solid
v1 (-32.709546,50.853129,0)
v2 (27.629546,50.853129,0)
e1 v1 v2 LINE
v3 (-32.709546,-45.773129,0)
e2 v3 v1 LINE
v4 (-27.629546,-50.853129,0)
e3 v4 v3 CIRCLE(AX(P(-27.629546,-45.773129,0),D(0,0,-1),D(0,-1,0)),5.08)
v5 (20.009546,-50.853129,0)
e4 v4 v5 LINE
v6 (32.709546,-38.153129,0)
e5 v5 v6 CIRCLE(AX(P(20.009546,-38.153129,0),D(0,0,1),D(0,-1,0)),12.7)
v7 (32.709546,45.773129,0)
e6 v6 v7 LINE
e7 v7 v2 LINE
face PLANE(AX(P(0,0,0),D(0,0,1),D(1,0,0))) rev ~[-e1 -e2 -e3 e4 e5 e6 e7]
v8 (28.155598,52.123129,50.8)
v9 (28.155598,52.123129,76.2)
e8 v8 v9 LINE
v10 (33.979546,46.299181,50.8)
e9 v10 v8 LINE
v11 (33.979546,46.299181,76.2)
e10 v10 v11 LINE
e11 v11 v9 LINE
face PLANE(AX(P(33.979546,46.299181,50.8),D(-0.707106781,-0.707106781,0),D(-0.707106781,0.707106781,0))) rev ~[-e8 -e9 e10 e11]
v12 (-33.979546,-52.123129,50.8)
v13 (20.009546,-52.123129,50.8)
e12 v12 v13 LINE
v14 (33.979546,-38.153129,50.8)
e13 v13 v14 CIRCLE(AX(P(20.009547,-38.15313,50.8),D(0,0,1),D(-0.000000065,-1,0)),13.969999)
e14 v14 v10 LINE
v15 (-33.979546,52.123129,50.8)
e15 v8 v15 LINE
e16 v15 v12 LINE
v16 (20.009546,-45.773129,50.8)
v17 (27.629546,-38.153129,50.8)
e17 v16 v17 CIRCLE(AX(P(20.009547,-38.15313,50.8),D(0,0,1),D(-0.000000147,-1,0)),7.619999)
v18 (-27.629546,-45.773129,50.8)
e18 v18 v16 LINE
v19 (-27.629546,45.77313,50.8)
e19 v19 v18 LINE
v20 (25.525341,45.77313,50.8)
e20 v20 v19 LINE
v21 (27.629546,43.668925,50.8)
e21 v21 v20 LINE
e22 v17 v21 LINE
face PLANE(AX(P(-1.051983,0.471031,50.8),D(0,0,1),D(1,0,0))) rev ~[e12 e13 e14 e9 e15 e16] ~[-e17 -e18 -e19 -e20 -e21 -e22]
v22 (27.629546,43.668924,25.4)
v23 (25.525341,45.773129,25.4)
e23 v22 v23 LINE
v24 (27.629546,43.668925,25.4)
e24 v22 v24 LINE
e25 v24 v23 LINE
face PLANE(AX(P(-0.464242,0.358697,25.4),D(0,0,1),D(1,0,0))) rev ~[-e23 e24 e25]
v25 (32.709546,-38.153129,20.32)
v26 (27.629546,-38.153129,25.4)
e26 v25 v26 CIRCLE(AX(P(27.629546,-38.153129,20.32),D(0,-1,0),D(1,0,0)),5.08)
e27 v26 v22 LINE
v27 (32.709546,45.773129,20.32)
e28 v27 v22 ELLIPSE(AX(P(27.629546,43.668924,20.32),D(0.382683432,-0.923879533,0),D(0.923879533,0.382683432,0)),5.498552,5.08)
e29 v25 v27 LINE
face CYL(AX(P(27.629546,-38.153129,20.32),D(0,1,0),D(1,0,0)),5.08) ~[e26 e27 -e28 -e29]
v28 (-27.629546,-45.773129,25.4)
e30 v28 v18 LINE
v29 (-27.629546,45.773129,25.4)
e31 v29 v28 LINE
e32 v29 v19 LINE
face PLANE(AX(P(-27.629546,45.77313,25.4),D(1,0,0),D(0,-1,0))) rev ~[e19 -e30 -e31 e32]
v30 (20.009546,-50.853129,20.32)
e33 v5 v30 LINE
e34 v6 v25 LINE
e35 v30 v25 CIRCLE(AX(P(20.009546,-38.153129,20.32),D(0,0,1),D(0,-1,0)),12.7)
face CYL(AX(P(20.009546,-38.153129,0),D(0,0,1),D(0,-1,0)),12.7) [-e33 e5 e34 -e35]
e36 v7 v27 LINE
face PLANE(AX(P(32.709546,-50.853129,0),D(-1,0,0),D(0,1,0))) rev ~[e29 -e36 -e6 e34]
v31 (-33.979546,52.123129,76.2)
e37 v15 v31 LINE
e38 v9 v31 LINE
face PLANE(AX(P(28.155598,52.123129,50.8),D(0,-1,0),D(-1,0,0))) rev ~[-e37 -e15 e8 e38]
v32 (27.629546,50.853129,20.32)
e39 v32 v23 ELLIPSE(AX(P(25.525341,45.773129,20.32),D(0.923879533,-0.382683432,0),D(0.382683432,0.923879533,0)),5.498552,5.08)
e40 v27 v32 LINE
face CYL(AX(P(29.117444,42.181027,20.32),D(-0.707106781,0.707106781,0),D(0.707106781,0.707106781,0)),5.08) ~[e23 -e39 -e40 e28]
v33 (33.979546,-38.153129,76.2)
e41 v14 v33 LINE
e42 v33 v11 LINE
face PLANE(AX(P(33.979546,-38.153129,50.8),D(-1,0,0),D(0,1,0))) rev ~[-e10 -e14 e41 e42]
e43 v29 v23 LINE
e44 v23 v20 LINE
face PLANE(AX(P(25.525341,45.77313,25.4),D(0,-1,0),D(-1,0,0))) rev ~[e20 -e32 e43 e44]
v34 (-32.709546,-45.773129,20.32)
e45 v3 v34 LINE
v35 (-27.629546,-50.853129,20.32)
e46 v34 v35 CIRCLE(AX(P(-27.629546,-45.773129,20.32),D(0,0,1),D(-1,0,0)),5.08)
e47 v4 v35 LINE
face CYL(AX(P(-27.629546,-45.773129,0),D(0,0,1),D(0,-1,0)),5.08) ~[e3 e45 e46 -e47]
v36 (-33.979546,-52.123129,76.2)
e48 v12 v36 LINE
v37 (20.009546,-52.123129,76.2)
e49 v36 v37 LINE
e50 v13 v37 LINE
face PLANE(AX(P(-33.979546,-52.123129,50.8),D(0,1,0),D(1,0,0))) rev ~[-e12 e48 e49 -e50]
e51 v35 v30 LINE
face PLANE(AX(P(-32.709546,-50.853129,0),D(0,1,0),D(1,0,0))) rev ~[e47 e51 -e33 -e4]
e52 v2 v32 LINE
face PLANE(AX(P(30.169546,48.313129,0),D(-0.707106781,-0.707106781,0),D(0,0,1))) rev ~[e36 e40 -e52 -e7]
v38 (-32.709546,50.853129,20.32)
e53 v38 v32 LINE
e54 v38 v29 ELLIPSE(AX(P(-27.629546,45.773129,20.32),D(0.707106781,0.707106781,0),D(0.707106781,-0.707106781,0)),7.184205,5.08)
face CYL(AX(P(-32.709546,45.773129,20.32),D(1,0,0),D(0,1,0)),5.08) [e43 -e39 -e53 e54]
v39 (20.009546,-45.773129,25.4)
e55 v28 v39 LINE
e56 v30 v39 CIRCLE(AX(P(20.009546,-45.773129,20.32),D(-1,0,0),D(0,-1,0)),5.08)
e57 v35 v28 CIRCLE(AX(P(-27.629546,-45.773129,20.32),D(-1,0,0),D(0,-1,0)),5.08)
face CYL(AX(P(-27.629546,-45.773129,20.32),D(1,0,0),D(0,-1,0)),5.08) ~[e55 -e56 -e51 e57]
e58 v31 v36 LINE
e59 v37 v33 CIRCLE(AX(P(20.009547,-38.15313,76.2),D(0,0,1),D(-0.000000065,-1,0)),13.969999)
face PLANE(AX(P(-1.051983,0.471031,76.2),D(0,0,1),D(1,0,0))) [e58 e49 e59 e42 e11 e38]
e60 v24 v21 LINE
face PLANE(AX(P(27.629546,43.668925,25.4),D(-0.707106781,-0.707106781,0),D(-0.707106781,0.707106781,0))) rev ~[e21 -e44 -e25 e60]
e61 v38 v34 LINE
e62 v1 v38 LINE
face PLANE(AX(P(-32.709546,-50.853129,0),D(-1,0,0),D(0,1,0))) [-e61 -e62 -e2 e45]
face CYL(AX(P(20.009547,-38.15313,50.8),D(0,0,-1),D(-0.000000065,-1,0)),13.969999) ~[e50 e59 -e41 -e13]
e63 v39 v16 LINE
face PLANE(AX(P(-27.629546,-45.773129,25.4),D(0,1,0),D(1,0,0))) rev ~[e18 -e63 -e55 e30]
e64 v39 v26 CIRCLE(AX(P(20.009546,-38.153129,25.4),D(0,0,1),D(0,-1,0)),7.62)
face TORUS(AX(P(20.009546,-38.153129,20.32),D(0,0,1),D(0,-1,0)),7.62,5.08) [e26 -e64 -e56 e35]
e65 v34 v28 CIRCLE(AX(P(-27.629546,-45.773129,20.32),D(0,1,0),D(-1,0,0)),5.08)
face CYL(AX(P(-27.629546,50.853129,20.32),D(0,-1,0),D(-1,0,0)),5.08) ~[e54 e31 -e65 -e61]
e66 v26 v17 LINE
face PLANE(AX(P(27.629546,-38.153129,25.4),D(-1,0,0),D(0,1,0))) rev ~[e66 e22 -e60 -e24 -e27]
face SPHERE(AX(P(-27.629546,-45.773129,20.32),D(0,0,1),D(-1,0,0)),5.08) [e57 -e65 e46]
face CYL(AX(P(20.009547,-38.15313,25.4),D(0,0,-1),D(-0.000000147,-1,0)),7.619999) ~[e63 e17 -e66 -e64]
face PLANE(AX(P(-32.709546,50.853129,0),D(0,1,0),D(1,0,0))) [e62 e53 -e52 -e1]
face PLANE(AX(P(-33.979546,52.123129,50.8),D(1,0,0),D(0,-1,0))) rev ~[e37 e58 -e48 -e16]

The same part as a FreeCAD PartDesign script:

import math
import FreeCAD as App
import Part
import Sketcher

V = App.Vector
Q = App.Units.Quantity


def edges_at(feature, points):
    """Names of the edges that pass closest to the given points."""
    edges = feature.Shape.Edges
    near = lambda p: min(range(len(edges)), key=lambda i: edges[i].distToShape(Part.Vertex(*p))[0])
    return sorted({f"Edge{near(p) + 1}" for p in points})

doc = App.newDocument("Part")
params = doc.addObject("Spreadsheet::Sheet", "Params")
for row, (alias, value) in enumerate([
    ("pad1_length", "1 in"),
    ("chamfer_size", "0.2 in"),
    ("fillet_radius", "0.2 in"),
    ("fillet2_radius", "0.5 in"),
    ("fillet3_radius", "0.2 in"),
    ("sketch2_radius", "0.3 in"),
    ("pad2_length", "1 in"),
    ("sketch3_radius", "0.55 in"),
    ("pad3_length", "1 in"),
], start=1):
    params.set(f"A{row}", alias)
    params.set(f"B{row}", "=" + value)
    params.setAlias(f"B{row}", alias)

body = doc.addObject("PartDesign::Body", "Body")

# Sketch on XY plane
sketch1 = body.newObject("Sketcher::SketchObject", "Sketch")
sketch1.AttachmentSupport = (doc.getObject("XY_Plane"), [""])
sketch1.MapMode = "FlatFace"
sketch1.addGeometry([
    Part.LineSegment(V(-33, 51, 0), V(-33, -51, 0)),
    Part.LineSegment(V(-33, -51, 0), V(33, -51, 0)),
    Part.LineSegment(V(33, -51, 0), V(33, 51, 0)),
    Part.LineSegment(V(33, 51, 0), V(-33, 51, 0)),
], False)
sketch1.addConstraint([
    Sketcher.Constraint("Coincident", 0, 2, 1, 1),
    Sketcher.Constraint("Coincident", 1, 2, 2, 1),
    Sketcher.Constraint("Coincident", 2, 2, 3, 1),
    Sketcher.Constraint("Coincident", 3, 2, 0, 1),
    Sketcher.Constraint("Vertical", 0),
    Sketcher.Constraint("Horizontal", 1),
    Sketcher.Constraint("Vertical", 2),
    Sketcher.Constraint("Horizontal", 3),
    Sketcher.Constraint("Symmetric", 0, 2, 2, 2, -1, 1),
    Sketcher.Constraint("DistanceY", 0, 2, 0, 1, Q("101.706258 mm")),
    Sketcher.Constraint("DistanceX", 1, 1, 1, 2, Q("65.419092 mm")),
])
pad1 = body.newObject("PartDesign::Pad", "Pad")
pad1.Profile = sketch1
pad1.setExpression("Length", "Params.pad1_length")
doc.recompute()

chamfer = body.newObject("PartDesign::Chamfer", "Chamfer")
chamfer.Base = (pad1, edges_at(pad1, [(32.71, 50.853, 12.7)]))
chamfer.setExpression("Size", "Params.chamfer_size")
doc.recompute()

fillet = body.newObject("PartDesign::Fillet", "Fillet")
fillet.Base = (chamfer, edges_at(chamfer, [(-32.71, -50.853, 12.7)]))
fillet.setExpression("Radius", "Params.fillet_radius")
doc.recompute()

fillet2 = body.newObject("PartDesign::Fillet", "Fillet001")
fillet2.Base = (fillet, edges_at(fillet, [(32.71, -50.853, 12.7)]))
fillet2.setExpression("Radius", "Params.fillet2_radius")
doc.recompute()

fillet3 = body.newObject("PartDesign::Fillet", "Fillet002")
fillet3.Base = (fillet2, edges_at(fillet2, [
    (32.71, 3.81, 25.4),
    (-3.81, -50.853, 25.4),
    (28.99, -47.133, 25.4),
    (-31.222, -49.365, 25.4),
    (-32.71, 2.54, 25.4),
    (30.17, 48.313, 25.4),
    (-2.54, 50.853, 25.4),
]))
fillet3.setExpression("Radius", "Params.fillet3_radius")

# Sketch on XY plane
sketch2 = body.newObject("Sketcher::SketchObject", "Sketch001")
sketch2.AttachmentSupport = (doc.getObject("XY_Plane"), [""])
sketch2.MapMode = "FlatFace"
sketch2.AttachmentOffset = App.Placement(V(0, 0, 1 * 25.4), App.Rotation())
sketch2.addGeometry([
    Part.LineSegment(V(-27.6, 45.8, 0), V(-27.6, -45.8, 0)),  # 0
    Part.LineSegment(V(-27.6, -45.8, 0), V(20, -45.8, 0)),  # 1
    Part.ArcOfCircle(Part.Circle(V(20, -38.2, 0), V(0, 0, 1), 7.6), math.radians(-90), math.radians(0)),  # 2
    Part.LineSegment(V(27.6, -38.2, 0), V(27.6, 43.7, 0)),  # 3
    Part.LineSegment(V(27.6, 43.7, 0), V(25.5, 45.8, 0)),  # 4
    Part.LineSegment(V(25.5, 45.8, 0), V(-27.6, 45.8, 0)),  # 5
], False)
sketch2.addConstraint([
    Sketcher.Constraint("Coincident", 0, 2, 1, 1),
    Sketcher.Constraint("Tangent", 1, 2, 2, 1),
    Sketcher.Constraint("Tangent", 2, 2, 3, 1),
    Sketcher.Constraint("Coincident", 3, 2, 4, 1),
    Sketcher.Constraint("Coincident", 4, 2, 5, 1),
    Sketcher.Constraint("Coincident", 5, 2, 0, 1),
    Sketcher.Constraint("Vertical", 0),
    Sketcher.Constraint("Horizontal", 1),
    Sketcher.Constraint("Vertical", 3),
    Sketcher.Constraint("Horizontal", 5),
    Sketcher.Constraint("Radius", 2, Q("0.3 in")),
    Sketcher.Constraint("Angle", 4, Q("135 deg")),
    Sketcher.Constraint("DistanceY", 0, 2, 0, 1, Q("91.546259 mm")),
    Sketcher.Constraint("DistanceX", 1, 1, 1, 2, Q("47.639092 mm")),
    Sketcher.Constraint("DistanceX", 5, 2, 5, 1, Q("53.154887 mm")),
    Sketcher.Constraint("DistanceY", 2, 3, -1, 1, Q("38.15313 mm")),
    Sketcher.Constraint("DistanceX", -1, 1, 4, 2, Q("25.525341 mm")),
])
sketch2.setExpression("Constraints[10]", "Params.sketch2_radius")
pad2 = body.newObject("PartDesign::Pad", "Pad001")
pad2.Profile = sketch2
pad2.setExpression("Length", "Params.pad2_length")

# Sketch on XY plane
sketch3 = body.newObject("Sketcher::SketchObject", "Sketch002")
sketch3.AttachmentSupport = (doc.getObject("XY_Plane"), [""])
sketch3.MapMode = "FlatFace"
sketch3.AttachmentOffset = App.Placement(V(0, 0, 2 * 25.4), App.Rotation())
sketch3.addGeometry([
    Part.LineSegment(V(28, 52, 0), V(-34, 52, 0)),  # 0
    Part.LineSegment(V(-34, 52, 0), V(-34, -52, 0)),  # 1
    Part.LineSegment(V(-34, -52, 0), V(20, -52, 0)),  # 2
    Part.ArcOfCircle(Part.Circle(V(20, -38, 0), V(0, 0, 1), 14), math.radians(-90), math.radians(0)),  # 3
    Part.LineSegment(V(34, -38, 0), V(34, 46, 0)),  # 4
    Part.LineSegment(V(34, 46, 0), V(28, 52, 0)),  # 5
], False)
sketch3.addConstraint([
    Sketcher.Constraint("Coincident", 0, 2, 1, 1),
    Sketcher.Constraint("Coincident", 1, 2, 2, 1),
    Sketcher.Constraint("Tangent", 2, 2, 3, 1),
    Sketcher.Constraint("Tangent", 3, 2, 4, 1),
    Sketcher.Constraint("Coincident", 4, 2, 5, 1),
    Sketcher.Constraint("Coincident", 5, 2, 0, 1),
    Sketcher.Constraint("Horizontal", 0),
    Sketcher.Constraint("Vertical", 1),
    Sketcher.Constraint("Horizontal", 2),
    Sketcher.Constraint("Vertical", 4),
    Sketcher.Constraint("Radius", 3, Q("0.55 in")),
    Sketcher.Constraint("Angle", 5, Q("135 deg")),
    Sketcher.Constraint("DistanceY", 4, 1, 4, 2, Q("84.45231 mm")),
    Sketcher.Constraint("DistanceX", -1, 1, 5, 2, Q("28.155598 mm")),
    Sketcher.Constraint("DistanceX", 0, 2, 0, 1, Q("62.135144 mm")),
    Sketcher.Constraint("DistanceX", 2, 1, 2, 2, Q("53.989092 mm")),
    Sketcher.Constraint("DistanceY", 3, 3, -1, 1, Q("38.15313 mm")),
])
sketch3.setExpression("Constraints[10]", "Params.sketch3_radius")
pad3 = body.newObject("PartDesign::Pad", "Pad002")
pad3.Profile = sketch3
pad3.setExpression("Length", "Params.pad3_length")

doc.recompute()
